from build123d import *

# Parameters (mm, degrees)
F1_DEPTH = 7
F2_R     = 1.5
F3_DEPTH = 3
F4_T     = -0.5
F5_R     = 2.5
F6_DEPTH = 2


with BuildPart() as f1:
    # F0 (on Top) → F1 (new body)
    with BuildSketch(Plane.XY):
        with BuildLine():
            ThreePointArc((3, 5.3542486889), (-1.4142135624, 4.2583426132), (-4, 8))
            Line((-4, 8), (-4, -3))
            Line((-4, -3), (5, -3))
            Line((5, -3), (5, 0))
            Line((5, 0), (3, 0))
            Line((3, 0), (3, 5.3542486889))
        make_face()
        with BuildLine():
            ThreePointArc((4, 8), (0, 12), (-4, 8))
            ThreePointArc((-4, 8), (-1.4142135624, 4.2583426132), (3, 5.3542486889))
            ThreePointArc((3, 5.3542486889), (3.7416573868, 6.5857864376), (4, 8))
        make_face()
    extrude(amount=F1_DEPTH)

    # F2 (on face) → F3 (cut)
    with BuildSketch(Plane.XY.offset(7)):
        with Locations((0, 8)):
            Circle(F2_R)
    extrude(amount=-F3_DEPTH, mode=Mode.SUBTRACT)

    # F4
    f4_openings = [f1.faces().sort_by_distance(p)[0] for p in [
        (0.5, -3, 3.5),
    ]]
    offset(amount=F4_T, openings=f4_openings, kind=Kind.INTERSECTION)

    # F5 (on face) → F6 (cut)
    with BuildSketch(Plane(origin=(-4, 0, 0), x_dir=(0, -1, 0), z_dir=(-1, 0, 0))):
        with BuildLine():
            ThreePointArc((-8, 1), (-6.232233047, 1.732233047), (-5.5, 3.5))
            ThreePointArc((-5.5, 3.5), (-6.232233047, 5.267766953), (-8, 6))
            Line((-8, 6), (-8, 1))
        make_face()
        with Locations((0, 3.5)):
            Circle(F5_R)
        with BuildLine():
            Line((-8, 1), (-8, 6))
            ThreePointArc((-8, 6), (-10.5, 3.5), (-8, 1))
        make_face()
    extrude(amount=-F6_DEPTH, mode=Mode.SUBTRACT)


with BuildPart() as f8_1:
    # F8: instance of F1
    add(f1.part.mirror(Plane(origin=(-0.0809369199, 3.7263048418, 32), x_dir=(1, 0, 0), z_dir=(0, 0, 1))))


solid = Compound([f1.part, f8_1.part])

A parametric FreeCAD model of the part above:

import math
import FreeCAD as App
import Part
import Sketcher
from FreeCAD import Vector


def faces_at(feature, points):
    """Names of the faces that lie closest to the given points."""
    faces = feature.Shape.Faces
    near = lambda p: min(range(len(faces)), key=lambda i: faces[i].distToShape(Part.Vertex(*p))[0])
    return sorted({f"Face{near(p) + 1}" for p in points})

doc = App.newDocument("Part")
params = doc.addObject("Spreadsheet::Sheet", "Params")
for row, (alias, value) in enumerate([
    ("sketch1_radius", "4 mm"),
    ("sketch1_width", "9 mm"),
    ("sketch1_width2", "2 mm"),
    ("sketch1_height", "11 mm"),
    ("sketch1_height2", "3 mm"),
    ("pad1_length", "7 mm"),
    ("sketch2_diameter", "3 mm"),
    ("pocket1_length", "3 mm"),
    ("thickness_wall", "0.5 mm"),
    ("sketch3_diameter", "5 mm"),
    ("pocket2_length", "2 mm"),
], start=1):
    params.set(f"A{row}", alias)
    params.set(f"B{row}", "=" + value)
    params.setAlias(f"B{row}", alias)

body = doc.addObject("PartDesign::Body", "Body")

# Sketch on XY plane
sketch1 = body.newObject("Sketcher::SketchObject", "Sketch")
sketch1.AttachmentSupport = (doc.getObject("XY_Plane"), [""])
sketch1.MapMode = "FlatFace"
sketch1.addGeometry([
    Part.LineSegment(Vector(-4, 8, 0), Vector(-4, -3, 0)),  # 0
    Part.LineSegment(Vector(-4, -3, 0), Vector(5, -3, 0)),  # 1
    Part.LineSegment(Vector(5, -3, 0), Vector(5, 0, 0)),  # 2
    Part.LineSegment(Vector(5, 0, 0), Vector(3, 0, 0)),  # 3
    Part.LineSegment(Vector(3, 0, 0), Vector(3, 5.4, 0)),  # 4
    Part.ArcOfCircle(Part.Circle(Vector(0, 8, 0), Vector(0, 0, 1), 4), math.radians(-41), math.radians(0)),  # 5
    Part.ArcOfCircle(Part.Circle(Vector(0, 8, 0), Vector(0, 0, 1), 4), math.radians(0), math.radians(180)),  # 6
], False)
sketch1.addConstraint([
    Sketcher.Constraint("Coincident", 0, 2, 1, 1),
    Sketcher.Constraint("Coincident", 1, 2, 2, 1),
    Sketcher.Constraint("Coincident", 2, 2, 3, 1),
    Sketcher.Constraint("Coincident", 3, 2, 4, 1),
    Sketcher.Constraint("Coincident", 4, 2, 5, 1),
    Sketcher.Constraint("Tangent", 5, 2, 6, 1),
    Sketcher.Constraint("Tangent", 6, 2, 0, 1),
    Sketcher.Constraint("Vertical", 0),
    Sketcher.Constraint("Horizontal", 1),
    Sketcher.Constraint("Vertical", 2),
    Sketcher.Constraint("Horizontal", 3),
    Sketcher.Constraint("Vertical", 4),
    Sketcher.Constraint("Equal", 5, 6),
    Sketcher.Constraint("Symmetric", 5, 2, 6, 2, -2),
    Sketcher.Constraint("PointOnObject", 2, 2, -1),
    Sketcher.Constraint("Radius", 5, 4.0),
    Sketcher.Constraint("DistanceX", 1, 1, 1, 2, 9.0),
    Sketcher.Constraint("DistanceX", 3, 2, 3, 1, 2.0),
    Sketcher.Constraint("DistanceY", 0, 2, 0, 1, 11.0),
    Sketcher.Constraint("DistanceY", 2, 1, 2, 2, 3.0),
])
sketch1.setExpression("Constraints[15]", "Params.sketch1_radius")
sketch1.setExpression("Constraints[16]", "Params.sketch1_width")
sketch1.setExpression("Constraints[17]", "Params.sketch1_width2")
sketch1.setExpression("Constraints[18]", "Params.sketch1_height")
sketch1.setExpression("Constraints[19]", "Params.sketch1_height2")
pad1 = body.newObject("PartDesign::Pad", "Pad")
pad1.Profile = sketch1
pad1.setExpression("Length", "Params.pad1_length")

# Sketch on XY plane
sketch2 = body.newObject("Sketcher::SketchObject", "Sketch001")
sketch2.AttachmentSupport = (doc.getObject("XY_Plane"), [""])
sketch2.MapMode = "FlatFace"
sketch2.AttachmentOffset = App.Placement(Vector(0, 0, 7), App.Rotation())
sketch2.addGeometry(Part.Circle(Vector(0, 8, 0), Vector(0, 0, 1), 1.5), False)
sketch2.addConstraint([
    Sketcher.Constraint("PointOnObject", 0, 3, -2),
    Sketcher.Constraint("Diameter", 0, 3.0),
    Sketcher.Constraint("DistanceY", -1, 1, 0, 3, 8.0),
])
sketch2.setExpression("Constraints[1]", "Params.sketch2_diameter")
pocket1 = body.newObject("PartDesign::Pocket", "Pocket")
pocket1.Profile = sketch2
pocket1.setExpression("Length", "Params.pocket1_length")
doc.recompute()

thickness = body.newObject("PartDesign::Thickness", "Thickness")
thickness.Base = (pocket1, faces_at(pocket1, [(0.5, -3, 3.5)]))
thickness.setExpression("Value", "Params.thickness_wall")
thickness.Reversed = True
thickness.Join = "Intersection"

# Sketch on YZ plane
sketch3 = body.newObject("Sketcher::SketchObject", "Sketch002")
sketch3.AttachmentSupport = (doc.getObject("YZ_Plane"), [""])
sketch3.MapMode = "FlatFace"
sketch3.AttachmentOffset = App.Placement(Vector(0, 0, -4), App.Rotation())
sketch3.addGeometry([
    Part.ArcOfCircle(Part.Circle(Vector(8, 3.5, 0), Vector(0, 0, 1), 2.5), math.radians(180), math.radians(270)),
    Part.ArcOfCircle(Part.Circle(Vector(8, 3.5, 0), Vector(0, 0, 1), 2.5), math.radians(90), math.radians(180)),
    Part.ArcOfCircle(Part.Circle(Vector(8, 3.5, 0), Vector(0, 0, 1), 2.5), math.radians(-90), math.radians(90)),
    Part.Circle(Vector(0, 3.5, 0), Vector(0, 0, 1), 2.5),
], False)
sketch3.addConstraint([
    Sketcher.Constraint("Tangent", 0, 1, 1, 2),
    Sketcher.Constraint("Tangent", 1, 1, 2, 2),
    Sketcher.Constraint("Tangent", 2, 1, 0, 2),
    Sketcher.Constraint("Equal", 2, 3),
    Sketcher.Constraint("PointOnObject", 3, 3, -2),
    Sketcher.Constraint("Horizontal", 2, 3, 3, 3),
    Sketcher.Constraint("Horizontal", 3, 3, 0, 1),
    Sketcher.Constraint("Vertical", 2, 3, 1, 1),
    Sketcher.Constraint("Vertical", 1, 1, 2, 1),
    Sketcher.Constraint("Diameter", 3, 5.0),
    Sketcher.Constraint("DistanceX", -1, 1, 0, 3, 8.0),
    Sketcher.Constraint("DistanceY", -1, 1, 1, 1, 6.0),
])
sketch3.setExpression("Constraints[9]", "Params.sketch3_diameter")
pocket2 = body.newObject("PartDesign::Pocket", "Pocket001")
pocket2.Profile = sketch3
pocket2.setExpression("Length", "Params.pocket2_length")
pocket2.Reversed = True
body2 = doc.addObject("PartDesign::Body", "Body001")
doc.recompute()

mirroring = doc.addObject("Part::Mirroring", "Mirroring")
mirroring.Source = body
mirroring.Base = Vector(-0.080937, 3.726305, 32)
mirroring.Normal = Vector(0, 0, 1)
body2.BaseFeature = mirroring
doc.recompute()
mirroring.Visibility = False

doc.recompute()
